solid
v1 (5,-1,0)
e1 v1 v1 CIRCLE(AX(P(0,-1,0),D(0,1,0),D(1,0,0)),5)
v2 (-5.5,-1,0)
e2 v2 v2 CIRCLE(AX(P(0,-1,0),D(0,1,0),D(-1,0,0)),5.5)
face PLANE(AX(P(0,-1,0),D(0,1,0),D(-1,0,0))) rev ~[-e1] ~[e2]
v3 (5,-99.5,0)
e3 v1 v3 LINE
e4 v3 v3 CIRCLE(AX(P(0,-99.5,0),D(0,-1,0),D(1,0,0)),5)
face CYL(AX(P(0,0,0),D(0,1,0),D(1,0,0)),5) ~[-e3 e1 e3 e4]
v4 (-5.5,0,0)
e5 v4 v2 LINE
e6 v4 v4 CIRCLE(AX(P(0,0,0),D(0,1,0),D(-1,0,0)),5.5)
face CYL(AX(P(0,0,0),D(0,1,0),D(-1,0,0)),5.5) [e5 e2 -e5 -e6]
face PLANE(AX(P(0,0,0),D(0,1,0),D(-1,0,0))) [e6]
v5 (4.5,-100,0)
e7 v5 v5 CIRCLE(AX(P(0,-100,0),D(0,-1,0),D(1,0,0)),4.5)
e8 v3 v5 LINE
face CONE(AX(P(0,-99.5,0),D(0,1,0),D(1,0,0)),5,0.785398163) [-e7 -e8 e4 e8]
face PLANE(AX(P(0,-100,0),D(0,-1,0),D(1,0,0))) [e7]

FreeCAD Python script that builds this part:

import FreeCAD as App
import Part
import Sketcher
Q = App.Units.Quantity


def edges_at(feature, points):
    """Names of the edges that pass closest to the given points."""
    edges = feature.Shape.Edges
    near = lambda p: min(range(len(edges)), key=lambda i: edges[i].distToShape(Part.Vertex(*p))[0])
    return sorted({f"Edge{near(p) + 1}" for p in points})

doc = App.newDocument("Part")
params = doc.addObject("Spreadsheet::Sheet", "Params")
for row, (alias, value) in enumerate([
    ("sketch1_diameter", "10 mm"),
    ("pad1_length", "100 mm"),
    ("chamfer_size", "0.5 mm"),
    ("sketch2_diameter", "11 mm"),
    ("pad2_length", "1 mm"),
], start=1):
    params.set(f"A{row}", alias)
    params.set(f"B{row}", "=" + value)
    params.setAlias(f"B{row}", alias)

body = doc.addObject("PartDesign::Body", "Body")

sketch1 = body.newObject("Sketcher::SketchObject", "Sketch")
sketch1.AttachmentSupport = (doc.getObject("XZ_Plane"), [""])
sketch1.MapMode = "FlatFace"
sketch1.addGeometry(Part.Circle(App.Vector(0, 0, 0), App.Vector(0, 0, 1), 5), False)
sketch1.addConstraint(Sketcher.Constraint("Coincident", 0, 3, -1, 1))
sketch1.addConstraint(Sketcher.Constraint("Diameter", 0, Q("10 mm")))
sketch1.setExpression("Constraints[1]", "Params.sketch1_diameter")
pad1 = body.newObject("PartDesign::Pad", "Pad")
pad1.Profile = sketch1
pad1.setExpression("Length", "Params.pad1_length")
doc.recompute()

chamfer = body.newObject("PartDesign::Chamfer", "Chamfer")
chamfer.Base = (pad1, edges_at(pad1, [(-5, -100, 0)]))
chamfer.setExpression("Size", "Params.chamfer_size")

sketch2 = body.newObject("Sketcher::SketchObject", "Sketch001")
sketch2.AttachmentSupport = (doc.getObject("XZ_Plane"), [""])
sketch2.MapMode = "FlatFace"
sketch2.addGeometry(Part.Circle(App.Vector(0, 0, 0), App.Vector(0, 0, 1), 5.5), False)
sketch2.addConstraint(Sketcher.Constraint("Coincident", 0, 3, -1, 1))
sketch2.addConstraint(Sketcher.Constraint("Diameter", 0, Q("11 mm")))
sketch2.setExpression("Constraints[1]", "Params.sketch2_diameter")
pad2 = body.newObject("PartDesign::Pad", "Pad001")
pad2.Profile = sketch2
pad2.setExpression("Length", "Params.pad2_length")

doc.recompute()
